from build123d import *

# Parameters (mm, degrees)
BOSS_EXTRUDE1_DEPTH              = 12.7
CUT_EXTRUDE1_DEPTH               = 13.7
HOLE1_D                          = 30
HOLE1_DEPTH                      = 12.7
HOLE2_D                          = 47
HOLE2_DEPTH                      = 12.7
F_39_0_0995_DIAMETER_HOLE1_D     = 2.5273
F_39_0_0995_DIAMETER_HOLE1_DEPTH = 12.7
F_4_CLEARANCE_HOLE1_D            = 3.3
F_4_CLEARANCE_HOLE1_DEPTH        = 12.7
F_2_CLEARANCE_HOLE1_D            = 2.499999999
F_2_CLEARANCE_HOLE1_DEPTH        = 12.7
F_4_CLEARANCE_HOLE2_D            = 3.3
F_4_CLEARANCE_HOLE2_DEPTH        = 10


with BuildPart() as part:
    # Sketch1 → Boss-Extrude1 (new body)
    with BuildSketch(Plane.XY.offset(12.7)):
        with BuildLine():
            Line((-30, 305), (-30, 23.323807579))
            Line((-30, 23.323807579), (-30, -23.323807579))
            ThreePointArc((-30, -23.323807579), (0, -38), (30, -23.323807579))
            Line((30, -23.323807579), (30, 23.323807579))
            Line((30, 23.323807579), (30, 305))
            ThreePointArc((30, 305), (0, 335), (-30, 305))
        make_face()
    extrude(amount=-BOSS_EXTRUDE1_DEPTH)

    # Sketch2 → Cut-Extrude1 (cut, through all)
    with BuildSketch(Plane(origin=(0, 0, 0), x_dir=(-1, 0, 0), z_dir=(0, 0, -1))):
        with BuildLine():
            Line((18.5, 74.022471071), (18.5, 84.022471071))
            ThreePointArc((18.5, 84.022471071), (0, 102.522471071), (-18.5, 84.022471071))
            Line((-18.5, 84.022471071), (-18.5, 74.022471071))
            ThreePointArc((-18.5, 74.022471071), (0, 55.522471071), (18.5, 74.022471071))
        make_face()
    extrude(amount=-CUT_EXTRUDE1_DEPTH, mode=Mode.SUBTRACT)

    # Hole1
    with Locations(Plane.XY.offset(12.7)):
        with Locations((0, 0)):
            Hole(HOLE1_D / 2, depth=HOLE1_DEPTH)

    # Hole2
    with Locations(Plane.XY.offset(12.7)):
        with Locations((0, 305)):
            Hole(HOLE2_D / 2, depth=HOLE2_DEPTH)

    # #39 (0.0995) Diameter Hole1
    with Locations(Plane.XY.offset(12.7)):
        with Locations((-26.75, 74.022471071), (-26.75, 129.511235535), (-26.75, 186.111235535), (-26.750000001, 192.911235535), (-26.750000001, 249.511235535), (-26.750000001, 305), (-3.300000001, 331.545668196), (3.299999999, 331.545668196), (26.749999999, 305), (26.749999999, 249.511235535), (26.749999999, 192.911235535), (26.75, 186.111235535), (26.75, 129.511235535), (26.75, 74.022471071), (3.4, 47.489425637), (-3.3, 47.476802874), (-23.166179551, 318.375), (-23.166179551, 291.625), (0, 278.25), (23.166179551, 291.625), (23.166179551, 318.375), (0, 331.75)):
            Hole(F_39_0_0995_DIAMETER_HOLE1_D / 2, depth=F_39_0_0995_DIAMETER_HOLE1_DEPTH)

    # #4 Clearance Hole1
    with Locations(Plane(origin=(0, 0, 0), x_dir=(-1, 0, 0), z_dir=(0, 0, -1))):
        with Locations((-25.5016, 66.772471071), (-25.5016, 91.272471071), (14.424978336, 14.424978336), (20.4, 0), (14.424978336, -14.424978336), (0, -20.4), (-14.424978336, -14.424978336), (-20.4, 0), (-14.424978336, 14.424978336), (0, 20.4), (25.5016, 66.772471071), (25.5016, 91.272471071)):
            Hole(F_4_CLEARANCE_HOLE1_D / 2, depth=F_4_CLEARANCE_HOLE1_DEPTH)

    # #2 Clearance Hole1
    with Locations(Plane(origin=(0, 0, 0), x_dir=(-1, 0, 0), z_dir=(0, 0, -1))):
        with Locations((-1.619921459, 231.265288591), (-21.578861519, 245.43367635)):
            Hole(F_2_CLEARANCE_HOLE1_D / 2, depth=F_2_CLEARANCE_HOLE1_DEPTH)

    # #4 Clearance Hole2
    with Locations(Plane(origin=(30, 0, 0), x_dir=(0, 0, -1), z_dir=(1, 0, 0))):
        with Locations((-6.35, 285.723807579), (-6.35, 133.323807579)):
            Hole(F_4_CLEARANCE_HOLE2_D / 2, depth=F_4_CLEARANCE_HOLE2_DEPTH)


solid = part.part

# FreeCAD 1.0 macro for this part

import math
import FreeCAD as App
import Part
import Sketcher

V = App.Vector

doc = App.newDocument("Part")
params = doc.addObject("Spreadsheet::Sheet", "Params")
for row, (alias, value) in enumerate([
    ("sketch1_radius", "38 mm"),
    ("sketch1_radius2", "30 mm"),
    ("pad1_length", "12.7 mm"),
    ("sketch2_radius", "18.5 mm"),
    ("sketch2_height", "10 mm"),
    ("sketch3_diameter", "30 mm"),
    ("hole_diameter", "30 mm"),
    ("hole_depth", "12.7 mm"),
    ("sketch4_diameter", "47 mm"),
    ("hole2_diameter", "47 mm"),
    ("hole2_depth", "12.7 mm"),
    ("hole3_diameter", "2.5273 mm"),
    ("hole3_depth", "12.7 mm"),
    ("sketch6_diameter", "3.3 mm"),
    ("hole4_diameter", "3.3 mm"),
    ("hole4_depth", "12.7 mm"),
    ("sketch7_diameter", "2.5 mm"),
    ("hole5_diameter", "2.5 mm"),
    ("hole5_depth", "12.7 mm"),
    ("sketch8_diameter", "3.3 mm"),
    ("hole6_diameter", "3.3 mm"),
    ("hole6_depth", "10 mm"),
], start=1):
    params.set(f"A{row}", alias)
    params.set(f"B{row}", "=" + value)
    params.setAlias(f"B{row}", alias)

body = doc.addObject("PartDesign::Body", "Body")

# Sketch on XY plane
sketch1 = body.newObject("Sketcher::SketchObject", "Sketch")
sketch1.AttachmentSupport = (doc.getObject("XY_Plane"), [""])
sketch1.MapMode = "FlatFace"
sketch1.AttachmentOffset = App.Placement(V(0, 0, 12.7), App.Rotation())
sketch1.addGeometry([
    Part.LineSegment(V(-30, 305, 0), V(-30, -23, 0)),
    Part.ArcOfCircle(Part.Circle(V(0, 0, 0), V(0, 0, 1), 38), math.radians(-142), math.radians(-38)),
    Part.LineSegment(V(30, -23, 0), V(30, 305, 0)),
    Part.ArcOfCircle(Part.Circle(V(0, 305, 0), V(0, 0, 1), 30), math.radians(0), math.radians(180)),
], False)
sketch1.addConstraint([
    Sketcher.Constraint("Coincident", 0, 2, 1, 1),
    Sketcher.Constraint("Coincident", 1, 2, 2, 1),
    Sketcher.Constraint("Tangent", 2, 2, 3, 1),
    Sketcher.Constraint("Tangent", 3, 2, 0, 1),
    Sketcher.Constraint("Vertical", 0),
    Sketcher.Constraint("Vertical", 2),
    Sketcher.Constraint("Coincident", 1, 3, -1, 1),
    Sketcher.Constraint("PointOnObject", 3, 3, -2),
    Sketcher.Constraint("Radius", 1, 38.0),
    Sketcher.Constraint("Radius", 3, 30.0),
    Sketcher.Constraint("DistanceY", -1, 1, 3, 3, 305.0),
])
sketch1.setExpression("Constraints[8]", "Params.sketch1_radius")
sketch1.setExpression("Constraints[9]", "Params.sketch1_radius2")
pad1 = body.newObject("PartDesign::Pad", "Pad")
pad1.Profile = sketch1
pad1.setExpression("Length", "Params.pad1_length")
pad1.Reversed = True

# Sketch on XY plane
sketch2 = body.newObject("Sketcher::SketchObject", "Sketch001")
sketch2.AttachmentSupport = (doc.getObject("XY_Plane"), [""])
sketch2.MapMode = "FlatFace"
sketch2.addGeometry([
    Part.LineSegment(V(-18, 74, 0), V(-18, 84, 0)),
    Part.ArcOfCircle(Part.Circle(V(0, 84, 0), V(0, 0, 1), 18), math.radians(0), math.radians(180)),
    Part.LineSegment(V(18, 84, 0), V(18, 74, 0)),
    Part.ArcOfCircle(Part.Circle(V(0, 74, 0), V(0, 0, 1), 18), math.radians(180), math.radians(360)),
], False)
sketch2.addConstraint([
    Sketcher.Constraint("Tangent", 0, 2, 1, 2),
    Sketcher.Constraint("Tangent", 1, 1, 2, 1),
    Sketcher.Constraint("Tangent", 2, 2, 3, 2),
    Sketcher.Constraint("Tangent", 3, 1, 0, 1),
    Sketcher.Constraint("Vertical", 0),
    Sketcher.Constraint("Vertical", 2),
    Sketcher.Constraint("PointOnObject", 1, 3, -2),
    Sketcher.Constraint("Radius", 1, 18.5),
    Sketcher.Constraint("DistanceY", 0, 1, 0, 2, 10.0),
    Sketcher.Constraint("DistanceY", -1, 1, 1, 3, 84.022471),
])
sketch2.setExpression("Constraints[7]", "Params.sketch2_radius")
sketch2.setExpression("Constraints[8]", "Params.sketch2_height")
pocket1 = body.newObject("PartDesign::Pocket", "Pocket")
pocket1.Profile = sketch2
pocket1.Type = "ThroughAll"
pocket1.Reversed = True

# Sketch on XY plane
sketch3 = body.newObject("Sketcher::SketchObject", "Sketch002")
sketch3.AttachmentSupport = (doc.getObject("XY_Plane"), [""])
sketch3.MapMode = "FlatFace"
sketch3.AttachmentOffset = App.Placement(V(0, 0, 12.7), App.Rotation())
sketch3.addGeometry(Part.Circle(V(0, 0, 0), V(0, 0, 1), 15), False)
sketch3.addConstraint([
    Sketcher.Constraint("Coincident", 0, 3, -1, 1),
    Sketcher.Constraint("Diameter", 0, 30.0),
])
sketch3.setExpression("Constraints[1]", "Params.sketch3_diameter")
doc.recompute()
hole = body.newObject("PartDesign::Hole", "Hole")
hole.Profile = sketch3
hole.ThreadType = "None"
hole.setExpression("Diameter", "Params.hole_diameter")
hole.DepthType = "Dimension"
hole.setExpression("Depth", "Params.hole_depth")
hole.DrillPoint = "Flat"

# Sketch on XY plane
sketch4 = body.newObject("Sketcher::SketchObject", "Sketch003")
sketch4.AttachmentSupport = (doc.getObject("XY_Plane"), [""])
sketch4.MapMode = "FlatFace"
sketch4.AttachmentOffset = App.Placement(V(0, 0, 12.7), App.Rotation())
sketch4.addGeometry(Part.Circle(V(0, 305, 0), V(0, 0, 1), 24), False)
sketch4.addConstraint([
    Sketcher.Constraint("PointOnObject", 0, 3, -2),
    Sketcher.Constraint("Diameter", 0, 47.0),
    Sketcher.Constraint("DistanceY", -1, 1, 0, 3, 305.0),
])
sketch4.setExpression("Constraints[1]", "Params.sketch4_diameter")
doc.recompute()
hole2 = body.newObject("PartDesign::Hole", "Hole001")
hole2.Profile = sketch4
hole2.ThreadType = "None"
hole2.setExpression("Diameter", "Params.hole2_diameter")
hole2.DepthType = "Dimension"
hole2.setExpression("Depth", "Params.hole2_depth")
hole2.DrillPoint = "Flat"

# Sketch on XY plane
sketch5 = body.newObject("Sketcher::SketchObject", "Sketch004")
sketch5.AttachmentSupport = (doc.getObject("XY_Plane"), [""])
sketch5.MapMode = "FlatFace"
sketch5.AttachmentOffset = App.Placement(V(0, 0, 12.7), App.Rotation())
sketch5.addGeometry([
    Part.Circle(V(-26.8, 74, 0), V(0, 0, 1), 1.3),  # 0
    Part.Circle(V(-26.8, 129.5, 0), V(0, 0, 1), 1.3),  # 1
    Part.Circle(V(-26.8, 186.1, 0), V(0, 0, 1), 1.3),  # 2
    Part.Circle(V(-26.8, 192.9, 0), V(0, 0, 1), 1.3),  # 3
    Part.Circle(V(-26.8, 249.5, 0), V(0, 0, 1), 1.3),  # 4
    Part.Circle(V(-26.8, 305, 0), V(0, 0, 1), 1.3),  # 5
    Part.Circle(V(-3.3, 331.5, 0), V(0, 0, 1), 1.3),  # 6
    Part.Circle(V(3.3, 331.5, 0), V(0, 0, 1), 1.3),  # 7
    Part.Circle(V(26.7, 305, 0), V(0, 0, 1), 1.3),  # 8
    Part.Circle(V(26.7, 249.5, 0), V(0, 0, 1), 1.3),  # 9
    Part.Circle(V(26.7, 192.9, 0), V(0, 0, 1), 1.3),  # 10
    Part.Circle(V(26.8, 186.1, 0), V(0, 0, 1), 1.3),  # 11
    Part.Circle(V(26.8, 129.5, 0), V(0, 0, 1), 1.3),  # 12
    Part.Circle(V(26.8, 74, 0), V(0, 0, 1), 1.3),  # 13
    Part.Circle(V(3.4, 47.5, 0), V(0, 0, 1), 1.3),  # 14
    Part.Circle(V(-3.3, 47.5, 0), V(0, 0, 1), 1.3),  # 15
    Part.Circle(V(-23.2, 318.4, 0), V(0, 0, 1), 1.3),  # 16
    Part.Circle(V(-23.2, 291.6, 0), V(0, 0, 1), 1.3),  # 17
    Part.Circle(V(0, 278.2, 0), V(0, 0, 1), 1.3),  # 18
    Part.Circle(V(23.2, 291.6, 0), V(0, 0, 1), 1.3),  # 19
    Part.Circle(V(23.2, 318.4, 0), V(0, 0, 1), 1.3),  # 20
    Part.Circle(V(0, 331.8, 0), V(0, 0, 1), 1.3),  # 21
], False)
sketch5.addConstraint([
    Sketcher.Constraint("Equal", 0, 1),
    Sketcher.Constraint("Equal", 1, 2),
    Sketcher.Constraint("Equal", 2, 3),
    Sketcher.Constraint("Equal", 3, 4),
    Sketcher.Constraint("Equal", 4, 5),
    Sketcher.Constraint("Equal", 5, 6),
    Sketcher.Constraint("Equal", 6, 7),
    Sketcher.Constraint("Equal", 7, 8),
    Sketcher.Constraint("Equal", 8, 9),
    Sketcher.Constraint("Equal", 9, 10),
    Sketcher.Constraint("Equal", 10, 11),
    Sketcher.Constraint("Equal", 11, 12),
    Sketcher.Constraint("Equal", 12, 13),
    Sketcher.Constraint("Equal", 13, 14),
    Sketcher.Constraint("Equal", 14, 15),
    Sketcher.Constraint("Equal", 15, 16),
    Sketcher.Constraint("Equal", 16, 17),
    Sketcher.Constraint("Equal", 17, 18),
    Sketcher.Constraint("Equal", 18, 19),
    Sketcher.Constraint("Equal", 19, 20),
    Sketcher.Constraint("Equal", 20, 21),
    Sketcher.Constraint("Symmetric", 6, 3, 7, 3, -2),
    Sketcher.Constraint("Symmetric", 5, 3, 8, 3, -2),
    Sketcher.Constraint("Symmetric", 4, 3, 9, 3, -2),
    Sketcher.Constraint("Symmetric", 3, 3, 10, 3, -2),
    Sketcher.Constraint("Symmetric", 2, 3, 11, 3, -2),
    Sketcher.Constraint("Symmetric", 1, 3, 12, 3, -2),
    Sketcher.Constraint("Symmetric", 0, 3, 13, 3, -2),
    Sketcher.Constraint("Symmetric", 17, 3, 19, 3, -2),
    Sketcher.Constraint("Symmetric", 16, 3, 20, 3, -2),
    Sketcher.Constraint("PointOnObject", 18, 3, -2),
    Sketcher.Constraint("PointOnObject", 21, 3, -2),
    Sketcher.Constraint("Vertical", 0, 3, 1, 3),
    Sketcher.Constraint("Vertical", 1, 3, 2, 3),
    Sketcher.Constraint("Vertical", 2, 3, 3, 3),
    Sketcher.Constraint("Vertical", 3, 3, 4, 3),
    Sketcher.Constraint("Vertical", 4, 3, 5, 3),
    Sketcher.Constraint("Vertical", 6, 3, 15, 3),
    Sketcher.Constraint("Vertical", 16, 3, 17, 3),
    Sketcher.Constraint("DistanceY", -1, 1, 5, 3, 305.0),
    Sketcher.Constraint("DistanceY", 1, 3, 4, 3, 120.0),
    Sketcher.Constraint("Diameter", 0, 2.5273),
    Sketcher.Constraint("DistanceX", 6, 3, -1, 1, 3.3),
    Sketcher.Constraint("DistanceX", -1, 1, 14, 3, 3.4),
    Sketcher.Constraint("DistanceY", 1, 3, 2, 3, 56.6),
    Sketcher.Constraint("DistanceY", 2, 3, 3, 3, 6.8),
    Sketcher.Constraint("DistanceX", 5, 3, 8, 3, 53.5),
    Sketcher.Constraint("DistanceY", -1, 1, 18, 3, 278.25),
    Sketcher.Constraint("DistanceY", -1, 1, 21, 3, 331.75),
    Sketcher.Constraint("DistanceY", 17, 3, 16, 3, 26.75),
    Sketcher.Constraint("DistanceY", -1, 1, 16, 3, 318.375),
    Sketcher.Constraint("DistanceY", -1, 1, 0, 3, 74.022471),
    Sketcher.Constraint("DistanceY", -1, 1, 6, 3, 331.545668),
    Sketcher.Constraint("DistanceX", 16, 3, -1, 1, 23.16618),
    Sketcher.Constraint("DistanceY", 14, 3, 12, 3, 82.02181),
    Sketcher.Constraint("DistanceY", 15, 3, 0, 3, 26.545668),
    Sketcher.Constraint("DistanceY", -1, 1, 1, 3, 129.511236),
])
doc.recompute()
hole3 = body.newObject("PartDesign::Hole", "Hole002")
hole3.Profile = sketch5
hole3.ThreadType = "None"
hole3.setExpression("Diameter", "Params.hole3_diameter")
hole3.DepthType = "Dimension"
hole3.setExpression("Depth", "Params.hole3_depth")
hole3.DrillPoint = "Flat"

# Sketch on XY plane
sketch6 = body.newObject("Sketcher::SketchObject", "Sketch005")
sketch6.AttachmentSupport = (doc.getObject("XY_Plane"), [""])
sketch6.MapMode = "FlatFace"
sketch6.addGeometry([
    Part.Circle(V(25.5, 66.8, 0), V(0, 0, 1), 1.6),  # 0
    Part.Circle(V(25.5, 91.3, 0), V(0, 0, 1), 1.6),  # 1
    Part.Circle(V(-14.4, 14.4, 0), V(0, 0, 1), 1.6),  # 2
    Part.Circle(V(-20.4, 0, 0), V(0, 0, 1), 1.6),  # 3
    Part.Circle(V(-14.4, -14.4, 0), V(0, 0, 1), 1.6),  # 4
    Part.Circle(V(0, -20.4, 0), V(0, 0, 1), 1.6),  # 5
    Part.Circle(V(14.4, -14.4, 0), V(0, 0, 1), 1.6),  # 6
    Part.Circle(V(20.4, 0, 0), V(0, 0, 1), 1.6),  # 7
    Part.Circle(V(14.4, 14.4, 0), V(0, 0, 1), 1.6),  # 8
    Part.Circle(V(0, 20.4, 0), V(0, 0, 1), 1.6),  # 9
    Part.Circle(V(-25.5, 66.8, 0), V(0, 0, 1), 1.6),  # 10
    Part.Circle(V(-25.5, 91.3, 0), V(0, 0, 1), 1.6),  # 11
], False)
sketch6.addConstraint([
    Sketcher.Constraint("Equal", 0, 1),
    Sketcher.Constraint("Equal", 1, 2),
    Sketcher.Constraint("Equal", 2, 3),
    Sketcher.Constraint("Equal", 3, 4),
    Sketcher.Constraint("Equal", 4, 5),
    Sketcher.Constraint("Equal", 5, 6),
    Sketcher.Constraint("Equal", 6, 7),
    Sketcher.Constraint("Equal", 7, 8),
    Sketcher.Constraint("Equal", 8, 9),
    Sketcher.Constraint("Equal", 9, 10),
    Sketcher.Constraint("Equal", 10, 11),
    Sketcher.Constraint("Symmetric", 2, 3, 6, 3, -1, 1),
    Sketcher.Constraint("Symmetric", 3, 3, 7, 3, -1, 1),
    Sketcher.Constraint("Symmetric", 4, 3, 8, 3, -1, 1),
    Sketcher.Constraint("Symmetric", 5, 3, 9, 3, -1, 1),
    Sketcher.Constraint("Symmetric", 4, 3, 6, 3, -2),
    Sketcher.Constraint("Symmetric", 0, 3, 10, 3, -2),
    Sketcher.Constraint("Symmetric", 1, 3, 11, 3, -2),
    Sketcher.Constraint("PointOnObject", 3, 3, -1),
    Sketcher.Constraint("PointOnObject", 5, 3, -2),
    Sketcher.Constraint("Vertical", 0, 3, 1, 3),
    Sketcher.Constraint("Diameter", 0, 3.3),
    Sketcher.Constraint("DistanceX", 3, 3, -1, 1, 20.4),
    Sketcher.Constraint("DistanceY", 5, 3, -1, 1, 20.4),
    Sketcher.Constraint("DistanceY", 0, 3, 1, 3, 24.5),
    Sketcher.Constraint("DistanceX", -1, 1, 0, 3, 25.5016),
    Sketcher.Constraint("DistanceY", -1, 1, 0, 3, 66.772471),
    Sketcher.Constraint("DistanceX", 2, 3, -1, 1, 14.424978),
    Sketcher.Constraint("DistanceY", -1, 1, 2, 3, 14.424978),
])
sketch6.setExpression("Constraints[21]", "Params.sketch6_diameter")
doc.recompute()
hole4 = body.newObject("PartDesign::Hole", "Hole003")
hole4.Profile = sketch6
hole4.ThreadType = "None"
hole4.setExpression("Diameter", "Params.hole4_diameter")
hole4.DepthType = "Dimension"
hole4.setExpression("Depth", "Params.hole4_depth")
hole4.DrillPoint = "Flat"
hole4.Reversed = True

# Sketch on XY plane
sketch7 = body.newObject("Sketcher::SketchObject", "Sketch006")
sketch7.AttachmentSupport = (doc.getObject("XY_Plane"), [""])
sketch7.MapMode = "FlatFace"
sketch7.addGeometry([
    Part.Circle(V(1.6, 231.3, 0), V(0, 0, 1), 1.2),
    Part.Circle(V(21.6, 245.4, 0), V(0, 0, 1), 1.2),
], False)
sketch7.addConstraint([
    Sketcher.Constraint("Equal", 0, 1),
    Sketcher.Constraint("Diameter", 0, 2.5),
    Sketcher.Constraint("DistanceX", -1, 1, 0, 3, 1.619921),
    Sketcher.Constraint("DistanceY", -1, 1, 0, 3, 231.265289),
    Sketcher.Constraint("DistanceX", -1, 1, 1, 3, 21.578862),
    Sketcher.Constraint("DistanceY", -1, 1, 1, 3, 245.433676),
])
sketch7.setExpression("Constraints[1]", "Params.sketch7_diameter")
doc.recompute()
hole5 = body.newObject("PartDesign::Hole", "Hole004")
hole5.Profile = sketch7
hole5.ThreadType = "None"
hole5.setExpression("Diameter", "Params.hole5_diameter")
hole5.DepthType = "Dimension"
hole5.setExpression("Depth", "Params.hole5_depth")
hole5.DrillPoint = "Flat"
hole5.Reversed = True

# Sketch on YZ plane
sketch8 = body.newObject("Sketcher::SketchObject", "Sketch007")
sketch8.AttachmentSupport = (doc.getObject("YZ_Plane"), [""])
sketch8.MapMode = "FlatFace"
sketch8.AttachmentOffset = App.Placement(V(0, 0, 30), App.Rotation())
sketch8.addGeometry([
    Part.Circle(V(285.7, 6.3, 0), V(0, 0, 1), 1.6),
    Part.Circle(V(133.3, 6.3, 0), V(0, 0, 1), 1.6),
], False)
sketch8.addConstraint([
    Sketcher.Constraint("Equal", 0, 1),
    Sketcher.Constraint("Horizontal", 0, 3, 1, 3),
    Sketcher.Constraint("Diameter", 0, 3.3),
    Sketcher.Constraint("DistanceX", 1, 3, 0, 3, 152.4),
    Sketcher.Constraint("DistanceY", -1, 1, 0, 3, 6.35),
    Sketcher.Constraint("DistanceX", -1, 1, 0, 3, 285.723808),
])
sketch8.setExpression("Constraints[2]", "Params.sketch8_diameter")
doc.recompute()
hole6 = body.newObject("PartDesign::Hole", "Hole005")
hole6.Profile = sketch8
hole6.ThreadType = "None"
hole6.setExpression("Diameter", "Params.hole6_diameter")
hole6.DepthType = "Dimension"
hole6.setExpression("Depth", "Params.hole6_depth")
hole6.DrillPoint = "Flat"

doc.recompute()
